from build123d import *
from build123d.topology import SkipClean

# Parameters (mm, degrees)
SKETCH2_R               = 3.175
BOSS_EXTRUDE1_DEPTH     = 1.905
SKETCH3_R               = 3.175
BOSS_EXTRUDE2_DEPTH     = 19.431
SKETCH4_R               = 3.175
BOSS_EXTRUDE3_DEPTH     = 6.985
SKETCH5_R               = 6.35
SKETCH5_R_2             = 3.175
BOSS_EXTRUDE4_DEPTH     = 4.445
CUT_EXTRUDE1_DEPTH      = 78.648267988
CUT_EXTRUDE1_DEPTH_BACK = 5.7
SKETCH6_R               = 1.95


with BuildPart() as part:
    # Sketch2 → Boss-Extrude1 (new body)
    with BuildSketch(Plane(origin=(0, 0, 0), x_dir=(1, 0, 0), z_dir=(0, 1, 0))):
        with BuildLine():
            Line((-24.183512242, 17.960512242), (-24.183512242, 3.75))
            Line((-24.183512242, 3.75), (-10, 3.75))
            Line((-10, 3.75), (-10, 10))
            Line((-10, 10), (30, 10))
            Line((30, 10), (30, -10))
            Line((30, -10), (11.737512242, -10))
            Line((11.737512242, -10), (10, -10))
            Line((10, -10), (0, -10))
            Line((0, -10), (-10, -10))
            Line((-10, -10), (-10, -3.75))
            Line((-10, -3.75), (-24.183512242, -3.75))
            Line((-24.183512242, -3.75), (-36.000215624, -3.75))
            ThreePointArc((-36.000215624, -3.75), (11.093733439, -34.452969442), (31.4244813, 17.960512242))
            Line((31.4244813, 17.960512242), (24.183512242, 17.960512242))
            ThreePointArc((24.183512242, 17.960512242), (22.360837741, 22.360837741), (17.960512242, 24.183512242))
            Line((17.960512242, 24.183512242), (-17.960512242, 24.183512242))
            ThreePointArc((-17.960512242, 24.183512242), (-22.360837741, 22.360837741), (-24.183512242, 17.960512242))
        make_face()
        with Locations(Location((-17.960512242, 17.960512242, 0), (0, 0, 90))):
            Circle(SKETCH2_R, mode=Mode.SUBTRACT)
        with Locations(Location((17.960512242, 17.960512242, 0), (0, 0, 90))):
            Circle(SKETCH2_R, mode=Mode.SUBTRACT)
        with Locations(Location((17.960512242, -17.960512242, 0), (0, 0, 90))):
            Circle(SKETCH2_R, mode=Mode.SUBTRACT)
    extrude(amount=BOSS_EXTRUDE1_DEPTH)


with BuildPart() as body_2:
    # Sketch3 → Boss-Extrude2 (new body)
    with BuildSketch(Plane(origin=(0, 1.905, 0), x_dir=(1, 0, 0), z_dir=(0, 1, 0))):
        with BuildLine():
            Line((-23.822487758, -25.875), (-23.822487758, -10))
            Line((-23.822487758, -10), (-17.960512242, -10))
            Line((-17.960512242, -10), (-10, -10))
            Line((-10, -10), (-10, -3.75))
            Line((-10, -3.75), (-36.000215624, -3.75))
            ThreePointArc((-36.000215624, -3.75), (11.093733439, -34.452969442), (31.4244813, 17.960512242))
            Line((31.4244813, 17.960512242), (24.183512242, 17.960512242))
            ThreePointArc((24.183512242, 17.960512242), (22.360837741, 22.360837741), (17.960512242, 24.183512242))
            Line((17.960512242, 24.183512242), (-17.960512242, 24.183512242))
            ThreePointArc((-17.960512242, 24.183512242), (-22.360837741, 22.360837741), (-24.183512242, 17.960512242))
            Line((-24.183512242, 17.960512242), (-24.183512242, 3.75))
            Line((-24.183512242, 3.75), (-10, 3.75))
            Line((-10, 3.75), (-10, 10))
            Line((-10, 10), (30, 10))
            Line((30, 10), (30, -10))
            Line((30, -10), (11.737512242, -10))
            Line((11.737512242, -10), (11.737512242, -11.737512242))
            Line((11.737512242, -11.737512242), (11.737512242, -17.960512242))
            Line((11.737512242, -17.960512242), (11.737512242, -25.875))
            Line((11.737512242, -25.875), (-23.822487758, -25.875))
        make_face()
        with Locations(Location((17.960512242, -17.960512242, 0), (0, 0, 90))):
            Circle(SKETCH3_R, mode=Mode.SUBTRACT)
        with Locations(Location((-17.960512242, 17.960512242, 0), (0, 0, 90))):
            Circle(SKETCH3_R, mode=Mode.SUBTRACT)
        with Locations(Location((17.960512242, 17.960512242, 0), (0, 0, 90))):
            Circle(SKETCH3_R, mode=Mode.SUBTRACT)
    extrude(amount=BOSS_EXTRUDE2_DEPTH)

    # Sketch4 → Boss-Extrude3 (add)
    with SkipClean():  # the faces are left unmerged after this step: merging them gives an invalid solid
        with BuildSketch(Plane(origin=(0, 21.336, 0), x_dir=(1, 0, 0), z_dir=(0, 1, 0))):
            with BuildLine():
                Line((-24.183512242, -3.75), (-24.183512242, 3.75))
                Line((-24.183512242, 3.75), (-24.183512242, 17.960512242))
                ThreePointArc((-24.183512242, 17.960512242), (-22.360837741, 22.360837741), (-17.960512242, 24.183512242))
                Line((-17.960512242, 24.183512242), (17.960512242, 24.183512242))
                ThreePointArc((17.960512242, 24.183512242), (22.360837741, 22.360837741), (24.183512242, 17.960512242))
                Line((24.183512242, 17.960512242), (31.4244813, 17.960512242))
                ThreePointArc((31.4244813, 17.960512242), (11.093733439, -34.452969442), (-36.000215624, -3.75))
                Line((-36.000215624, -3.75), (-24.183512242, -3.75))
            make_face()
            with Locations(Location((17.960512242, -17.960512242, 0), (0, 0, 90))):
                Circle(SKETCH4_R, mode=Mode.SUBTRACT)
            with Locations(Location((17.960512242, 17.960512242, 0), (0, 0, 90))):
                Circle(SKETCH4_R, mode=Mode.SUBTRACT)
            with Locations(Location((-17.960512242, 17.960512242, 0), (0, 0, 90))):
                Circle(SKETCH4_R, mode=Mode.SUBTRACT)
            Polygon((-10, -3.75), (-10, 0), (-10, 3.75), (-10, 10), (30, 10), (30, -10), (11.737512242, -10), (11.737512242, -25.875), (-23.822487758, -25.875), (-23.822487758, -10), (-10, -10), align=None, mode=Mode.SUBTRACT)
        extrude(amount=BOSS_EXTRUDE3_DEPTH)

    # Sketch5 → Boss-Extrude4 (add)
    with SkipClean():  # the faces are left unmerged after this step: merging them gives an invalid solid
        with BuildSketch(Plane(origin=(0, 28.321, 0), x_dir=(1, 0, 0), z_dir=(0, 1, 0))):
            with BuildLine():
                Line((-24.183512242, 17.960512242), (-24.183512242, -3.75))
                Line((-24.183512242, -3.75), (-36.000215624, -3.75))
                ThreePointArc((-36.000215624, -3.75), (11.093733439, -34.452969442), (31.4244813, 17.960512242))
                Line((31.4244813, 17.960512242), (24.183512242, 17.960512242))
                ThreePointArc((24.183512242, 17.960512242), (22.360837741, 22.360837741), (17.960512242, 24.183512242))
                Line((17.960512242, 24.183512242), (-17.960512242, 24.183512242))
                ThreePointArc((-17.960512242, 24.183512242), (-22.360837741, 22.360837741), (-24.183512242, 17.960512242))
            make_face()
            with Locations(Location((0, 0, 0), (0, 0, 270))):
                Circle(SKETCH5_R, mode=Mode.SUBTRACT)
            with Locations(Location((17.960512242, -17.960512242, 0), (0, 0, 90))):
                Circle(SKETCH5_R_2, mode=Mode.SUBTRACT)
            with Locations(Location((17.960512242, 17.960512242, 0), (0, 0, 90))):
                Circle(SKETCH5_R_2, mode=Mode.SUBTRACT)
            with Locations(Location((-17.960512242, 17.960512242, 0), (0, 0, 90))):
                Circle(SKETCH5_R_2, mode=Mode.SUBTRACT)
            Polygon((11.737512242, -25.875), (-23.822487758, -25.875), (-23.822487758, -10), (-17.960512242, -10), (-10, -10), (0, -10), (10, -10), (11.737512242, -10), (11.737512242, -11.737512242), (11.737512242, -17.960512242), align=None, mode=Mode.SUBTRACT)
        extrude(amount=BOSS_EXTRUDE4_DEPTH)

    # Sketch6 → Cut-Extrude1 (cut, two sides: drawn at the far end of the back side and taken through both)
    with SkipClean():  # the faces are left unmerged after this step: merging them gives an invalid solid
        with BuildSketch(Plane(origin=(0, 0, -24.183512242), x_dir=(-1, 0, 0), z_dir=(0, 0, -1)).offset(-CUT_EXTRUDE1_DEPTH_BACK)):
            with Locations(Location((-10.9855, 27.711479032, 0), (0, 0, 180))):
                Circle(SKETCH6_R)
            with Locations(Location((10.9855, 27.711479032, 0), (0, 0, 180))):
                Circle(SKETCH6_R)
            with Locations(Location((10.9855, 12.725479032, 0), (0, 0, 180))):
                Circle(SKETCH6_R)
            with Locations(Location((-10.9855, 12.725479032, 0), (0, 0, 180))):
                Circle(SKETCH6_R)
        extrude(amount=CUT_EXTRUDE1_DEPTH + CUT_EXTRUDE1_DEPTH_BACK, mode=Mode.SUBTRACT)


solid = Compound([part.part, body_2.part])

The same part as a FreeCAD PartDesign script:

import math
import FreeCAD as App
import Part
import Sketcher

V = App.Vector
Q = App.Units.Quantity


def add_polygon(sketch, points):
    """Adds a closed chain of lines whose ends are joined by coincident constraints."""
    first, n = sketch.GeometryCount, len(points)
    for a, b in zip(points, points[1:] + points[:1]):
        sketch.addGeometry(Part.LineSegment(App.Vector(*a, 0), App.Vector(*b, 0)), False)
    for i in range(n):
        sketch.addConstraint(Sketcher.Constraint("Coincident", first + i, 2, first + (i + 1) % n, 1))

doc = App.newDocument("Part")
body = doc.addObject("PartDesign::Body", "Body")

# Sketch on XZ plane
sketch1 = body.newObject("Sketcher::SketchObject", "Sketch")
sketch1.AttachmentSupport = (doc.getObject("XZ_Plane"), [""])
sketch1.MapMode = "FlatFace"
sketch1.addGeometry([
    Part.LineSegment(V(-24.2, -18, 0), V(-24.2, -3.8, 0)),  # 0
    Part.LineSegment(V(-24.2, -3.8, 0), V(-10, -3.8, 0)),  # 1
    Part.LineSegment(V(-10, -3.8, 0), V(-10, -10, 0)),  # 2
    Part.LineSegment(V(-10, -10, 0), V(30, -10, 0)),  # 3
    Part.LineSegment(V(30, -10, 0), V(30, 10, 0)),  # 4
    Part.LineSegment(V(30, 10, 0), V(-10, 10, 0)),  # 5
    Part.LineSegment(V(-10, 10, 0), V(-10, 3.8, 0)),  # 6
    Part.LineSegment(V(-10, 3.8, 0), V(-36, 3.8, 0)),  # 7
    Part.ArcOfCircle(Part.Circle(V(0, 0, 0), V(0, 0, 1), 36.2), math.radians(-30), math.radians(174)),  # 8
    Part.LineSegment(V(31.4, -18, 0), V(24.2, -18, 0)),  # 9
    Part.ArcOfCircle(Part.Circle(V(18, -18, 0), V(0, 0, 1), 6.2), math.radians(-90), math.radians(0)),  # 10
    Part.LineSegment(V(18, -24.2, 0), V(-18, -24.2, 0)),  # 11
    Part.ArcOfCircle(Part.Circle(V(-18, -18, 0), V(0, 0, 1), 6.2), math.radians(-180), math.radians(-90)),  # 12
    Part.Circle(V(18, 18, 0), V(0, 0, 1), 3.2),  # 13
    Part.Circle(V(-18, -18, 0), V(0, 0, 1), 3.2),  # 14
    Part.Circle(V(18, -18, 0), V(0, 0, 1), 3.2),  # 15
], False)
sketch1.addConstraint([
    Sketcher.Constraint("Coincident", 0, 2, 1, 1),
    Sketcher.Constraint("Coincident", 1, 2, 2, 1),
    Sketcher.Constraint("Coincident", 2, 2, 3, 1),
    Sketcher.Constraint("Coincident", 3, 2, 4, 1),
    Sketcher.Constraint("Coincident", 4, 2, 5, 1),
    Sketcher.Constraint("Coincident", 5, 2, 6, 1),
    Sketcher.Constraint("Coincident", 6, 2, 7, 1),
    Sketcher.Constraint("Coincident", 7, 2, 8, 2),
    Sketcher.Constraint("Coincident", 8, 1, 9, 1),
    Sketcher.Constraint("Coincident", 9, 2, 10, 2),
    Sketcher.Constraint("Tangent", 10, 1, 11, 1),
    Sketcher.Constraint("Tangent", 11, 2, 12, 2),
    Sketcher.Constraint("Tangent", 12, 1, 0, 1),
    Sketcher.Constraint("Vertical", 0),
    Sketcher.Constraint("Horizontal", 1),
    Sketcher.Constraint("Vertical", 2),
    Sketcher.Constraint("Horizontal", 3),
    Sketcher.Constraint("Vertical", 4),
    Sketcher.Constraint("Horizontal", 5),
    Sketcher.Constraint("Vertical", 6),
    Sketcher.Constraint("Horizontal", 7),
    Sketcher.Constraint("Horizontal", 9),
    Sketcher.Constraint("Horizontal", 11),
    Sketcher.Constraint("Coincident", 8, 3, -1, 1),
    Sketcher.Constraint("Coincident", 14, 3, 12, 3),
    Sketcher.Constraint("Coincident", 15, 3, 10, 3),
    Sketcher.Constraint("Equal", 10, 12),
    Sketcher.Constraint("Equal", 13, 14),
    Sketcher.Constraint("Equal", 14, 15),
    Sketcher.Constraint("Symmetric", 12, 3, 13, 3, -1, 1),
    Sketcher.Constraint("Symmetric", 9, 2, 12, 1, -2),
    Sketcher.Constraint("Symmetric", 2, 2, 5, 2, -1),
    Sketcher.Constraint("Equal", 2, 6),
    Sketcher.Constraint("Diameter", 13, Q("0.25 in")),
    Sketcher.Constraint("Radius", 8, Q("1.425 in")),
    Sketcher.Constraint("Radius", 10, Q("0.245 in")),
    Sketcher.Constraint("DistanceX", 3, 1, 3, 2, 40.0),
    Sketcher.Constraint("DistanceY", 2, 2, 2, 1, 6.25),
    Sketcher.Constraint("DistanceY", 4, 1, 4, 2, 20.0),
    Sketcher.Constraint("DistanceX", 9, 2, 9, 1, 7.240969),
    Sketcher.Constraint("DistanceX", 1, 2, -1, 1, 10.0),
    Sketcher.Constraint("DistanceX", 1, 1, 1, 2, 14.183512),
])
pad1 = body.newObject("PartDesign::Pad", "Pad")
pad1.Profile = sketch1
pad1.Length = Q("0.075 in")
pad1.Reversed = True
body2 = doc.addObject("PartDesign::Body", "Body001")

# Sketch on XZ plane
sketch2 = body2.newObject("Sketcher::SketchObject", "Sketch001")
sketch2.AttachmentSupport = (doc.getObject("XZ_Plane001"), [""])
sketch2.MapMode = "FlatFace"
sketch2.AttachmentOffset = App.Placement(V(0, 0, -0.075 * 25.4), App.Rotation())
sketch2.addGeometry([
    Part.LineSegment(V(-23.8, 25.9, 0), V(-23.8, 10, 0)),  # 0
    Part.LineSegment(V(-23.8, 10, 0), V(-10, 10, 0)),  # 1
    Part.LineSegment(V(-10, 10, 0), V(-10, 3.8, 0)),  # 2
    Part.LineSegment(V(-10, 3.8, 0), V(-36, 3.8, 0)),  # 3
    Part.ArcOfCircle(Part.Circle(V(0, 0, 0), V(0, 0, 1), 36.2), math.radians(-30), math.radians(174)),  # 4
    Part.LineSegment(V(31.4, -18, 0), V(24.2, -18, 0)),  # 5
    Part.ArcOfCircle(Part.Circle(V(18, -18, 0), V(0, 0, 1), 6.2), math.radians(-90), math.radians(0)),  # 6
    Part.LineSegment(V(18, -24.2, 0), V(-18, -24.2, 0)),  # 7
    Part.ArcOfCircle(Part.Circle(V(-18, -18, 0), V(0, 0, 1), 6.2), math.radians(-180), math.radians(-90)),  # 8
    Part.LineSegment(V(-24.2, -18, 0), V(-24.2, -3.8, 0)),  # 9
    Part.LineSegment(V(-24.2, -3.8, 0), V(-10, -3.8, 0)),  # 10
    Part.LineSegment(V(-10, -3.8, 0), V(-10, -10, 0)),  # 11
    Part.LineSegment(V(-10, -10, 0), V(30, -10, 0)),  # 12
    Part.LineSegment(V(30, -10, 0), V(30, 10, 0)),  # 13
    Part.LineSegment(V(30, 10, 0), V(11.7, 10, 0)),  # 14
    Part.LineSegment(V(11.7, 10, 0), V(11.7, 25.9, 0)),  # 15
    Part.LineSegment(V(11.7, 25.9, 0), V(-23.8, 25.9, 0)),  # 16
    Part.Circle(V(18, 18, 0), V(0, 0, 1), 3.2),  # 17
    Part.Circle(V(-18, -18, 0), V(0, 0, 1), 3.2),  # 18
    Part.Circle(V(18, -18, 0), V(0, 0, 1), 3.2),  # 19
], False)
sketch2.addConstraint([
    Sketcher.Constraint("Coincident", 0, 2, 1, 1),
    Sketcher.Constraint("Coincident", 1, 2, 2, 1),
    Sketcher.Constraint("Coincident", 2, 2, 3, 1),
    Sketcher.Constraint("Coincident", 3, 2, 4, 2),
    Sketcher.Constraint("Coincident", 4, 1, 5, 1),
    Sketcher.Constraint("Coincident", 5, 2, 6, 2),
    Sketcher.Constraint("Tangent", 6, 1, 7, 1),
    Sketcher.Constraint("Tangent", 7, 2, 8, 2),
    Sketcher.Constraint("Tangent", 8, 1, 9, 1),
    Sketcher.Constraint("Coincident", 9, 2, 10, 1),
    Sketcher.Constraint("Coincident", 10, 2, 11, 1),
    Sketcher.Constraint("Coincident", 11, 2, 12, 1),
    Sketcher.Constraint("Coincident", 12, 2, 13, 1),
    Sketcher.Constraint("Coincident", 13, 2, 14, 1),
    Sketcher.Constraint("Coincident", 14, 2, 15, 1),
    Sketcher.Constraint("Coincident", 15, 2, 16, 1),
    Sketcher.Constraint("Coincident", 16, 2, 0, 1),
    Sketcher.Constraint("Vertical", 0),
    Sketcher.Constraint("Horizontal", 1),
    Sketcher.Constraint("Vertical", 2),
    Sketcher.Constraint("Horizontal", 3),
    Sketcher.Constraint("Horizontal", 5),
    Sketcher.Constraint("Horizontal", 7),
    Sketcher.Constraint("Vertical", 9),
    Sketcher.Constraint("Horizontal", 10),
    Sketcher.Constraint("Vertical", 11),
    Sketcher.Constraint("Horizontal", 12),
    Sketcher.Constraint("Vertical", 13),
    Sketcher.Constraint("Horizontal", 14),
    Sketcher.Constraint("Vertical", 15),
    Sketcher.Constraint("Horizontal", 16),
    Sketcher.Constraint("Coincident", 4, 3, -1, 1),
    Sketcher.Constraint("Coincident", 18, 3, 8, 3),
    Sketcher.Constraint("Coincident", 19, 3, 6, 3),
    Sketcher.Constraint("Equal", 6, 8),
    Sketcher.Constraint("Equal", 17, 18),
    Sketcher.Constraint("Equal", 18, 19),
    Sketcher.Constraint("Symmetric", 8, 3, 17, 3, -1, 1),
    Sketcher.Constraint("Symmetric", 5, 2, 8, 1, -2),
    Sketcher.Constraint("Symmetric", 2, 2, 10, 2, -1),
    Sketcher.Constraint("Horizontal", 1, 2, 13, 2),
    Sketcher.Constraint("Equal", 2, 11),
    Sketcher.Constraint("Diameter", 17, Q("0.25 in")),
    Sketcher.Constraint("DistanceX", 16, 2, 16, 1, Q("1.4 in")),
    Sketcher.Constraint("Radius", 4, Q("1.425 in")),
    Sketcher.Constraint("Radius", 6, Q("0.245 in")),
    Sketcher.Constraint("DistanceY", 0, 2, 0, 1, Q("0.625 in")),
    Sketcher.Constraint("DistanceX", 0, 2, 17, 3, Q("1.645 in")),
    Sketcher.Constraint("DistanceX", 12, 1, 12, 2, 40.0),
    Sketcher.Constraint("DistanceY", 2, 2, 2, 1, 6.25),
    Sketcher.Constraint("DistanceY", 13, 1, 13, 2, 20.0),
    Sketcher.Constraint("DistanceX", 5, 2, 5, 1, 7.240969),
    Sketcher.Constraint("DistanceX", 1, 2, -1, 1, 10.0),
    Sketcher.Constraint("DistanceX", 1, 1, 1, 2, 13.822488),
])
pad2 = body2.newObject("PartDesign::Pad", "Pad001")
pad2.Profile = sketch2
pad2.Length = Q("0.765 in")
pad2.Reversed = True

# Sketch on XZ plane
sketch3 = body2.newObject("Sketcher::SketchObject", "Sketch002")
sketch3.AttachmentSupport = (doc.getObject("XZ_Plane001"), [""])
sketch3.MapMode = "FlatFace"
sketch3.AttachmentOffset = App.Placement(V(0, 0, -0.84 * 25.4), App.Rotation())
sketch3.addGeometry(Part.LineSegment(V(-24.2, -18, 0), V(-24.2, 3.8, 0)), False)  # 0
sketch3.addGeometry(Part.LineSegment(V(-24.2, 3.8, 0), V(-36, 3.8, 0)), False)  # 1
sketch3.addGeometry(Part.ArcOfCircle(Part.Circle(V(0, 0, 0), V(0, 0, 1), 36.2), math.radians(-30), math.radians(174)), False)  # 2
sketch3.addGeometry(Part.LineSegment(V(31.4, -18, 0), V(24.2, -18, 0)), False)  # 3
sketch3.addGeometry(Part.ArcOfCircle(Part.Circle(V(18, -18, 0), V(0, 0, 1), 6.2), math.radians(-90), math.radians(0)), False)  # 4
sketch3.addGeometry(Part.LineSegment(V(18, -24.2, 0), V(-18, -24.2, 0)), False)  # 5
sketch3.addGeometry(Part.ArcOfCircle(Part.Circle(V(-18, -18, 0), V(0, 0, 1), 6.2), math.radians(-180), math.radians(-90)), False)  # 6
sketch3.addGeometry(Part.Circle(V(18, 18, 0), V(0, 0, 1), 3.2), False)  # 7
add_polygon(sketch3, [(-10, 3.8), (-10, 0), (-10, -3.8), (-10, -10), (30, -10), (30, 10), (11.7, 10), (11.7, 25.9), (-23.8, 25.9), (-23.8, 10), (-10, 10)])  # lines 8-18
sketch3.addGeometry(Part.Circle(V(18, -18, 0), V(0, 0, 1), 3.2), False)  # 19
sketch3.addGeometry(Part.Circle(V(-18, -18, 0), V(0, 0, 1), 3.2), False)  # 20
sketch3.addConstraint([
    Sketcher.Constraint("Coincident", 0, 2, 1, 1),
    Sketcher.Constraint("Coincident", 1, 2, 2, 2),
    Sketcher.Constraint("Coincident", 2, 1, 3, 1),
    Sketcher.Constraint("Coincident", 3, 2, 4, 2),
    Sketcher.Constraint("Tangent", 4, 1, 5, 1),
    Sketcher.Constraint("Tangent", 5, 2, 6, 2),
    Sketcher.Constraint("Tangent", 6, 1, 0, 1),
    Sketcher.Constraint("Vertical", 0),
    Sketcher.Constraint("Horizontal", 1),
    Sketcher.Constraint("Horizontal", 3),
    Sketcher.Constraint("Horizontal", 5),
    Sketcher.Constraint("Vertical", 8),
    Sketcher.Constraint("Vertical", 9),
    Sketcher.Constraint("Vertical", 10),
    Sketcher.Constraint("Horizontal", 11),
    Sketcher.Constraint("Vertical", 12),
    Sketcher.Constraint("Horizontal", 13),
    Sketcher.Constraint("Vertical", 14),
    Sketcher.Constraint("Horizontal", 15),
    Sketcher.Constraint("Vertical", 16),
    Sketcher.Constraint("Horizontal", 17),
    Sketcher.Constraint("Vertical", 18),
    Sketcher.Constraint("Coincident", 2, 3, -1, 1),
    Sketcher.Constraint("Coincident", 19, 3, 4, 3),
    Sketcher.Constraint("Coincident", 20, 3, 6, 3),
    Sketcher.Constraint("Equal", 4, 6),
    Sketcher.Constraint("Equal", 7, 19),
    Sketcher.Constraint("Equal", 19, 20),
    Sketcher.Constraint("Symmetric", 6, 3, 7, 3, -1, 1),
    Sketcher.Constraint("Symmetric", 3, 2, 6, 1, -2),
    Sketcher.Constraint("PointOnObject", 8, 2, -1),
    Sketcher.Constraint("Horizontal", 13, 2, 16, 2),
    Sketcher.Constraint("Horizontal", 1, 2, 18, 2),
    Sketcher.Constraint("Equal", 8, 9),
    Sketcher.Constraint("Equal", 10, 18),
    Sketcher.Constraint("Diameter", 7, Q("0.25 in")),
    Sketcher.Constraint("DistanceX", 15, 2, 15, 1, Q("1.4 in")),
    Sketcher.Constraint("Radius", 2, Q("1.425 in")),
    Sketcher.Constraint("Radius", 4, Q("0.245 in")),
    Sketcher.Constraint("DistanceY", 14, 1, 14, 2, Q("0.625 in")),
    Sketcher.Constraint("DistanceX", 13, 2, 7, 3, Q("0.245 in")),
    Sketcher.Constraint("DistanceX", 11, 1, 11, 2, 40.0),
    Sketcher.Constraint("DistanceY", 8, 2, 8, 1, 3.75),
    Sketcher.Constraint("DistanceY", 10, 2, 10, 1, 6.25),
    Sketcher.Constraint("DistanceX", 3, 2, 3, 1, 7.240969),
    Sketcher.Constraint("DistanceX", 8, 2, -1, 1, 10.0),
    Sketcher.Constraint("DistanceX", 1, 2, 1, 1, 11.816703),
])
pad3 = body2.newObject("PartDesign::Pad", "Pad002")
pad3.Profile = sketch3
pad3.Length = Q("0.275 in")
pad3.Reversed = True

# Sketch on XZ plane
sketch4 = body2.newObject("Sketcher::SketchObject", "Sketch003")
sketch4.AttachmentSupport = (doc.getObject("XZ_Plane001"), [""])
sketch4.MapMode = "FlatFace"
sketch4.AttachmentOffset = App.Placement(V(0, 0, -1.115 * 25.4), App.Rotation())
sketch4.addGeometry(Part.LineSegment(V(-24.2, -18, 0), V(-24.2, 3.8, 0)), False)  # 0
sketch4.addGeometry(Part.LineSegment(V(-24.2, 3.8, 0), V(-36, 3.8, 0)), False)  # 1
sketch4.addGeometry(Part.ArcOfCircle(Part.Circle(V(0, 0, 0), V(0, 0, 1), 36.2), math.radians(-30), math.radians(174)), False)  # 2
sketch4.addGeometry(Part.LineSegment(V(31.4, -18, 0), V(24.2, -18, 0)), False)  # 3
sketch4.addGeometry(Part.ArcOfCircle(Part.Circle(V(18, -18, 0), V(0, 0, 1), 6.2), math.radians(-90), math.radians(0)), False)  # 4
sketch4.addGeometry(Part.LineSegment(V(18, -24.2, 0), V(-18, -24.2, 0)), False)  # 5
sketch4.addGeometry(Part.ArcOfCircle(Part.Circle(V(-18, -18, 0), V(0, 0, 1), 6.2), math.radians(-180), math.radians(-90)), False)  # 6
add_polygon(sketch4, [(11.7, 18), (11.7, 25.9), (-23.8, 25.9), (-23.8, 10), (-18, 10), (-10, 10), (0, 10), (10, 10), (11.7, 10), (11.7, 11.7)])  # lines 7-16
sketch4.addGeometry(Part.Circle(V(18, 18, 0), V(0, 0, 1), 3.2), False)  # 17
sketch4.addGeometry(Part.Circle(V(-18, -18, 0), V(0, 0, 1), 3.2), False)  # 18
sketch4.addGeometry(Part.Circle(V(0, 0, 0), V(0, 0, 1), 6.3), False)  # 19
sketch4.addGeometry(Part.Circle(V(18, -18, 0), V(0, 0, 1), 3.2), False)  # 20
sketch4.addConstraint([
    Sketcher.Constraint("Coincident", 0, 2, 1, 1),
    Sketcher.Constraint("Coincident", 1, 2, 2, 2),
    Sketcher.Constraint("Coincident", 2, 1, 3, 1),
    Sketcher.Constraint("Coincident", 3, 2, 4, 2),
    Sketcher.Constraint("Tangent", 4, 1, 5, 1),
    Sketcher.Constraint("Tangent", 5, 2, 6, 2),
    Sketcher.Constraint("Tangent", 6, 1, 0, 1),
    Sketcher.Constraint("Vertical", 0),
    Sketcher.Constraint("Horizontal", 1),
    Sketcher.Constraint("Horizontal", 3),
    Sketcher.Constraint("Horizontal", 5),
    Sketcher.Constraint("Vertical", 7),
    Sketcher.Constraint("Horizontal", 8),
    Sketcher.Constraint("Vertical", 9),
    Sketcher.Constraint("Horizontal", 10),
    Sketcher.Constraint("Horizontal", 11),
    Sketcher.Constraint("Horizontal", 12),
    Sketcher.Constraint("Horizontal", 13),
    Sketcher.Constraint("Horizontal", 14),
    Sketcher.Constraint("Vertical", 15),
    Sketcher.Constraint("Vertical", 16),
    Sketcher.Constraint("Coincident", 2, 3, -1, 1),
    Sketcher.Constraint("Coincident", 19, 3, -1, 1),
    Sketcher.Constraint("Coincident", 18, 3, 6, 3),
    Sketcher.Constraint("Coincident", 20, 3, 4, 3),
    Sketcher.Constraint("Equal", 4, 6),
    Sketcher.Constraint("Equal", 17, 18),
    Sketcher.Constraint("Equal", 18, 20),
    Sketcher.Constraint("Symmetric", 6, 3, 17, 3, -1, 1),
    Sketcher.Constraint("Symmetric", 3, 2, 6, 1, -2),
    Sketcher.Constraint("PointOnObject", 12, 2, -2),
    Sketcher.Constraint("Horizontal", 17, 3, 16, 2),
    Sketcher.Constraint("Vertical", 5, 2, 10, 2),
    Sketcher.Constraint("Equal", 12, 13),
    Sketcher.Constraint("Equal", 14, 15),
    Sketcher.Constraint("Diameter", 19, Q("0.5 in")),
    Sketcher.Constraint("Diameter", 17, Q("0.25 in")),
    Sketcher.Constraint("DistanceX", 8, 2, 8, 1, Q("1.4 in")),
    Sketcher.Constraint("Radius", 2, Q("1.425 in")),
    Sketcher.Constraint("Radius", 4, Q("0.245 in")),
    Sketcher.Constraint("DistanceY", 9, 2, 9, 1, Q("0.625 in")),
    Sketcher.Constraint("DistanceY", 16, 1, 16, 2, Q("0.245 in")),
    Sketcher.Constraint("DistanceX", 7, 2, 17, 3, Q("0.245 in")),
    Sketcher.Constraint("DistanceX", 12, 1, 12, 2, 10.0),
    Sketcher.Constraint("DistanceX", 3, 2, 3, 1, 7.240969),
    Sketcher.Constraint("DistanceY", -1, 1, 0, 2, 3.75),
    Sketcher.Constraint("DistanceY", -1, 1, 7, 2, 25.875),
])
pad4 = body2.newObject("PartDesign::Pad", "Pad003")
pad4.Profile = sketch4
pad4.Length = Q("0.175 in")
pad4.Reversed = True

# Sketch on XY plane
sketch5 = body2.newObject("Sketcher::SketchObject", "Sketch004")
sketch5.AttachmentSupport = (doc.getObject("XY_Plane001"), [""])
sketch5.MapMode = "FlatFace"
sketch5.AttachmentOffset = App.Placement(V(0, 0, -24.183512), App.Rotation())
sketch5.addGeometry([
    Part.Circle(V(11, 27.7, 0), V(0, 0, 1), 1.9),
    Part.Circle(V(-11, 27.7, 0), V(0, 0, 1), 1.9),
    Part.Circle(V(-11, 12.7, 0), V(0, 0, 1), 1.9),
    Part.Circle(V(11, 12.7, 0), V(0, 0, 1), 1.9),
], False)
sketch5.addConstraint([
    Sketcher.Constraint("Equal", 0, 1),
    Sketcher.Constraint("Equal", 1, 2),
    Sketcher.Constraint("Equal", 2, 3),
    Sketcher.Constraint("Symmetric", 0, 3, 1, 3, -2),
    Sketcher.Constraint("Symmetric", 2, 3, 3, 3, -2),
    Sketcher.Constraint("Vertical", 1, 3, 2, 3),
    Sketcher.Constraint("Diameter", 0, 3.9),
    Sketcher.Constraint("DistanceY", 2, 3, 1, 3, Q("0.59 in")),
    Sketcher.Constraint("DistanceX", 1, 3, 0, 3, Q("0.865 in")),
    Sketcher.Constraint("DistanceY", -1, 1, 0, 3, 27.711479),
])
pocket1 = body2.newObject("PartDesign::Pocket", "Pocket")
pocket1.Profile = sketch5
pocket1.Type = "TwoLengths"
pocket1.Length = 78.648268
pocket1.Length2 = 5.7

doc.recompute()
